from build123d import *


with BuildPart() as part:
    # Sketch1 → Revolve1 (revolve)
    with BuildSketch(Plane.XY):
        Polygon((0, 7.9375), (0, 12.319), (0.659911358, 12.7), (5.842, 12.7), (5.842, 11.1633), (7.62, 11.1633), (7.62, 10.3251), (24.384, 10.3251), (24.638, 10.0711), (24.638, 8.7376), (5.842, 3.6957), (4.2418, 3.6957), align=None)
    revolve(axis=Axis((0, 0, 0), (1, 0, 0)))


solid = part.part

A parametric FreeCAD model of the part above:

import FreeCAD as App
import Part
import Sketcher

V = App.Vector
Q = App.Units.Quantity


def add_polygon(sketch, points):
    """Adds a closed chain of lines whose ends are joined by coincident constraints."""
    first, n = sketch.GeometryCount, len(points)
    for a, b in zip(points, points[1:] + points[:1]):
        sketch.addGeometry(Part.LineSegment(App.Vector(*a, 0), App.Vector(*b, 0)), False)
    for i in range(n):
        sketch.addConstraint(Sketcher.Constraint("Coincident", first + i, 2, first + (i + 1) % n, 1))

doc = App.newDocument("Part")
body = doc.addObject("PartDesign::Body", "Body")

# Sketch on XY plane
sketch1 = body.newObject("Sketcher::SketchObject", "Sketch")
sketch1.AttachmentSupport = (doc.getObject("XY_Plane"), [""])
sketch1.MapMode = "FlatFace"
add_polygon(sketch1, [(0, 12.32), (0, 7.94), (4.24, 3.7), (5.84, 3.7), (24.64, 8.74), (24.64, 10.07), (24.38, 10.33), (7.62, 10.33), (7.62, 11.16), (5.84, 11.16), (5.84, 12.7), (0.66, 12.7)])  # lines 0-11
sketch1.addConstraint(Sketcher.Constraint("Vertical", 0))
sketch1.addConstraint(Sketcher.Constraint("Horizontal", 2))
sketch1.addConstraint(Sketcher.Constraint("Vertical", 4))
sketch1.addConstraint(Sketcher.Constraint("Horizontal", 6))
sketch1.addConstraint(Sketcher.Constraint("Vertical", 7))
sketch1.addConstraint(Sketcher.Constraint("Horizontal", 8))
sketch1.addConstraint(Sketcher.Constraint("Vertical", 9))
sketch1.addConstraint(Sketcher.Constraint("Horizontal", 10))
sketch1.addConstraint(Sketcher.Constraint("PointOnObject", 0, 2, -2))
sketch1.addConstraint(Sketcher.Constraint("Parallel", 1, 5))
sketch1.addConstraint(Sketcher.Constraint("Vertical", 2, 2, 8, 2))
sketch1.addConstraint(Sketcher.Constraint("Angle", 1, Q("-45 deg")))
sketch1.addConstraint(Sketcher.Constraint("Angle", 11, Q("-150 deg")))
sketch1.addConstraint(Sketcher.Constraint("DistanceX", 6, 2, 6, 1, Q("0.66 in")))
sketch1.addConstraint(Sketcher.Constraint("DistanceX", 8, 2, 8, 1, Q("0.07 in")))
sketch1.addConstraint(Sketcher.Constraint("DistanceX", -1, 1, 6, 2, Q("0.3 in")))
sketch1.addConstraint(Sketcher.Constraint("DistanceY", -1, 1, 9, 2, Q("0.5 in")))
sketch1.addConstraint(Sketcher.Constraint("Distance", 11, Q("0.03 in")))
sketch1.addConstraint(Sketcher.Constraint("DistanceX", 2, 1, 2, 2, Q("0.063 in")))
sketch1.addConstraint(Sketcher.Constraint("DistanceY", 7, 1, 7, 2, Q("0.033 in")))
sketch1.addConstraint(Sketcher.Constraint("DistanceX", -1, 1, 3, 2, Q("0.97 in")))
sketch1.addConstraint(Sketcher.Constraint("DistanceY", 0, 2, 0, 1, Q("0.1725 in")))
sketch1.addConstraint(Sketcher.Constraint("DistanceY", 4, 1, 4, 2, Q("0.0525 in")))
sketch1.addConstraint(Sketcher.Constraint("DistanceY", 9, 1, 9, 2, Q("0.0605 in")))
revolution = body.newObject("PartDesign::Revolution", "Revolution")
revolution.Profile = sketch1
revolution.ReferenceAxis = (sketch1, ["H_Axis"])
revolution.Angle = 360

doc.recompute()
